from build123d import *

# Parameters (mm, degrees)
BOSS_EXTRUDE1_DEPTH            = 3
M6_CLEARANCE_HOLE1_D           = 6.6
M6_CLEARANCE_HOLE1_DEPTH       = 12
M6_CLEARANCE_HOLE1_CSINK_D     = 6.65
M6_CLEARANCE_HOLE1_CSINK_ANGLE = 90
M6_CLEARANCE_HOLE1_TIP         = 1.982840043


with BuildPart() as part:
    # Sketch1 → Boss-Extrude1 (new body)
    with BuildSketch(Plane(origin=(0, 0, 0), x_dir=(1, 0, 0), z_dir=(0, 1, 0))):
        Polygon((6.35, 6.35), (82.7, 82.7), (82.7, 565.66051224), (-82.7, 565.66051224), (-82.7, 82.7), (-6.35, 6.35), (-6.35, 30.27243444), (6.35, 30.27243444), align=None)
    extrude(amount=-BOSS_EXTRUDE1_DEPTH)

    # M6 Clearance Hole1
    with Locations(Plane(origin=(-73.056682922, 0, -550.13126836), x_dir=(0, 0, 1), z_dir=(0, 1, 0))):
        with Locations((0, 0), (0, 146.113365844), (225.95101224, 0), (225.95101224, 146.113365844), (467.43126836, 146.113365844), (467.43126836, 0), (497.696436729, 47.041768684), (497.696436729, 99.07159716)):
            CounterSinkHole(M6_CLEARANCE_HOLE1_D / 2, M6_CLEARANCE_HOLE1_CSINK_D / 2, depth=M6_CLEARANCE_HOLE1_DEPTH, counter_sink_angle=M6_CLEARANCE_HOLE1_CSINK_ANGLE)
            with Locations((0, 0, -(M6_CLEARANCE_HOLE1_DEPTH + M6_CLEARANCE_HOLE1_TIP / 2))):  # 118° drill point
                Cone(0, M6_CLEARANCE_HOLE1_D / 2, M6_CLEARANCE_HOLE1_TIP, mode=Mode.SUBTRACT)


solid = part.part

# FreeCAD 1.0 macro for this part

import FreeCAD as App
import Part
import Sketcher

V = App.Vector
Q = App.Units.Quantity


def add_polygon(sketch, points):
    """Adds a closed chain of lines whose ends are joined by coincident constraints."""
    first, n = sketch.GeometryCount, len(points)
    for a, b in zip(points, points[1:] + points[:1]):
        sketch.addGeometry(Part.LineSegment(App.Vector(*a, 0), App.Vector(*b, 0)), False)
    for i in range(n):
        sketch.addConstraint(Sketcher.Constraint("Coincident", first + i, 2, first + (i + 1) % n, 1))

doc = App.newDocument("Part")
body = doc.addObject("PartDesign::Body", "Body")

# Sketch on XZ plane
sketch1 = body.newObject("Sketcher::SketchObject", "Sketch")
sketch1.AttachmentSupport = (doc.getObject("XZ_Plane"), [""])
sketch1.MapMode = "FlatFace"
add_polygon(sketch1, [(6.35, -6.35), (82.7, -82.7), (82.7, -565.660512), (-82.7, -565.660512), (-82.7, -82.7), (-6.35, -6.35), (-6.35, -30.272434), (6.35, -30.272434)])  # lines 0-7
sketch1.addConstraint([
    Sketcher.Constraint("Vertical", 1),
    Sketcher.Constraint("Horizontal", 2),
    Sketcher.Constraint("Vertical", 3),
    Sketcher.Constraint("Vertical", 5),
    Sketcher.Constraint("Horizontal", 6),
    Sketcher.Constraint("Vertical", 7),
    Sketcher.Constraint("Symmetric", 0, 2, 3, 2, -2),
    Sketcher.Constraint("Symmetric", 4, 2, 7, 2, -2),
    Sketcher.Constraint("Perpendicular", 0, 4),
    Sketcher.Constraint("DistanceX", 2, 2, 2, 1, Q("165.4 mm")),
    Sketcher.Constraint("DistanceX", 6, 1, 6, 2, Q("12.7 mm")),
    Sketcher.Constraint("DistanceY", 0, 2, -1, 1, Q("82.7 mm")),
    Sketcher.Constraint("DistanceY", 1, 2, 1, 1, Q("482.960512 mm")),
    Sketcher.Constraint("DistanceY", 5, 2, 5, 1, Q("23.922434 mm")),
])
pad1 = body.newObject("PartDesign::Pad", "Pad")
pad1.Profile = sketch1
pad1.Length = 3

# Sketch on XZ plane
sketch2 = body.newObject("Sketcher::SketchObject", "Sketch001")
sketch2.AttachmentSupport = (doc.getObject("XZ_Plane"), [""])
sketch2.MapMode = "FlatFace"
sketch2.addGeometry([
    Part.Circle(V(-73.056683, -550.131268, 0), V(0, 0, 1), 3.3),  # 0
    Part.Circle(V(73.056683, -550.131268, 0), V(0, 0, 1), 3.3),  # 1
    Part.Circle(V(-73.056683, -324.180256, 0), V(0, 0, 1), 3.3),  # 2
    Part.Circle(V(73.056683, -324.180256, 0), V(0, 0, 1), 3.3),  # 3
    Part.Circle(V(73.056683, -82.7, 0), V(0, 0, 1), 3.3),  # 4
    Part.Circle(V(-73.056683, -82.7, 0), V(0, 0, 1), 3.3),  # 5
    Part.Circle(V(-26.014914, -52.434832, 0), V(0, 0, 1), 3.3),  # 6
    Part.Circle(V(26.014914, -52.434832, 0), V(0, 0, 1), 3.3),  # 7
], False)
sketch2.addConstraint([
    Sketcher.Constraint("Equal", 0, 1),
    Sketcher.Constraint("Equal", 1, 2),
    Sketcher.Constraint("Equal", 2, 3),
    Sketcher.Constraint("Equal", 3, 4),
    Sketcher.Constraint("Equal", 4, 5),
    Sketcher.Constraint("Equal", 5, 6),
    Sketcher.Constraint("Equal", 6, 7),
    Sketcher.Constraint("Symmetric", 0, 3, 1, 3, -2),
    Sketcher.Constraint("Symmetric", 2, 3, 3, 3, -2),
    Sketcher.Constraint("Symmetric", 4, 3, 5, 3, -2),
    Sketcher.Constraint("Symmetric", 6, 3, 7, 3, -2),
    Sketcher.Constraint("Vertical", 0, 3, 2, 3),
    Sketcher.Constraint("Vertical", 3, 3, 4, 3),
    Sketcher.Constraint("Diameter", 0, Q("6.6 mm")),
    Sketcher.Constraint("DistanceY", 4, 3, -1, 1, Q("82.7 mm")),
    Sketcher.Constraint("DistanceY", 0, 3, -1, 1, Q("550.131268 mm")),
    Sketcher.Constraint("DistanceY", 6, 3, -1, 1, Q("52.434832 mm")),
    Sketcher.Constraint("DistanceX", 5, 3, 6, 3, Q("47.041769 mm")),
    Sketcher.Constraint("DistanceX", 6, 3, 7, 3, Q("52.029828 mm")),
    Sketcher.Constraint("DistanceY", 2, 3, -1, 1, Q("324.180256 mm")),
])
doc.recompute()
hole = body.newObject("PartDesign::Hole", "Hole")
hole.Profile = sketch2
hole.ThreadType = "None"
hole.Diameter = 6.6
hole.DepthType = "Dimension"
hole.Depth = 12
hole.DrillPoint = "Angled"
hole.DrillPointAngle = 118
hole.HoleCutType = "Countersink"
hole.HoleCutDiameter = 6.65
hole.HoleCutCountersinkAngle = 90
hole.Reversed = True

doc.recompute()
